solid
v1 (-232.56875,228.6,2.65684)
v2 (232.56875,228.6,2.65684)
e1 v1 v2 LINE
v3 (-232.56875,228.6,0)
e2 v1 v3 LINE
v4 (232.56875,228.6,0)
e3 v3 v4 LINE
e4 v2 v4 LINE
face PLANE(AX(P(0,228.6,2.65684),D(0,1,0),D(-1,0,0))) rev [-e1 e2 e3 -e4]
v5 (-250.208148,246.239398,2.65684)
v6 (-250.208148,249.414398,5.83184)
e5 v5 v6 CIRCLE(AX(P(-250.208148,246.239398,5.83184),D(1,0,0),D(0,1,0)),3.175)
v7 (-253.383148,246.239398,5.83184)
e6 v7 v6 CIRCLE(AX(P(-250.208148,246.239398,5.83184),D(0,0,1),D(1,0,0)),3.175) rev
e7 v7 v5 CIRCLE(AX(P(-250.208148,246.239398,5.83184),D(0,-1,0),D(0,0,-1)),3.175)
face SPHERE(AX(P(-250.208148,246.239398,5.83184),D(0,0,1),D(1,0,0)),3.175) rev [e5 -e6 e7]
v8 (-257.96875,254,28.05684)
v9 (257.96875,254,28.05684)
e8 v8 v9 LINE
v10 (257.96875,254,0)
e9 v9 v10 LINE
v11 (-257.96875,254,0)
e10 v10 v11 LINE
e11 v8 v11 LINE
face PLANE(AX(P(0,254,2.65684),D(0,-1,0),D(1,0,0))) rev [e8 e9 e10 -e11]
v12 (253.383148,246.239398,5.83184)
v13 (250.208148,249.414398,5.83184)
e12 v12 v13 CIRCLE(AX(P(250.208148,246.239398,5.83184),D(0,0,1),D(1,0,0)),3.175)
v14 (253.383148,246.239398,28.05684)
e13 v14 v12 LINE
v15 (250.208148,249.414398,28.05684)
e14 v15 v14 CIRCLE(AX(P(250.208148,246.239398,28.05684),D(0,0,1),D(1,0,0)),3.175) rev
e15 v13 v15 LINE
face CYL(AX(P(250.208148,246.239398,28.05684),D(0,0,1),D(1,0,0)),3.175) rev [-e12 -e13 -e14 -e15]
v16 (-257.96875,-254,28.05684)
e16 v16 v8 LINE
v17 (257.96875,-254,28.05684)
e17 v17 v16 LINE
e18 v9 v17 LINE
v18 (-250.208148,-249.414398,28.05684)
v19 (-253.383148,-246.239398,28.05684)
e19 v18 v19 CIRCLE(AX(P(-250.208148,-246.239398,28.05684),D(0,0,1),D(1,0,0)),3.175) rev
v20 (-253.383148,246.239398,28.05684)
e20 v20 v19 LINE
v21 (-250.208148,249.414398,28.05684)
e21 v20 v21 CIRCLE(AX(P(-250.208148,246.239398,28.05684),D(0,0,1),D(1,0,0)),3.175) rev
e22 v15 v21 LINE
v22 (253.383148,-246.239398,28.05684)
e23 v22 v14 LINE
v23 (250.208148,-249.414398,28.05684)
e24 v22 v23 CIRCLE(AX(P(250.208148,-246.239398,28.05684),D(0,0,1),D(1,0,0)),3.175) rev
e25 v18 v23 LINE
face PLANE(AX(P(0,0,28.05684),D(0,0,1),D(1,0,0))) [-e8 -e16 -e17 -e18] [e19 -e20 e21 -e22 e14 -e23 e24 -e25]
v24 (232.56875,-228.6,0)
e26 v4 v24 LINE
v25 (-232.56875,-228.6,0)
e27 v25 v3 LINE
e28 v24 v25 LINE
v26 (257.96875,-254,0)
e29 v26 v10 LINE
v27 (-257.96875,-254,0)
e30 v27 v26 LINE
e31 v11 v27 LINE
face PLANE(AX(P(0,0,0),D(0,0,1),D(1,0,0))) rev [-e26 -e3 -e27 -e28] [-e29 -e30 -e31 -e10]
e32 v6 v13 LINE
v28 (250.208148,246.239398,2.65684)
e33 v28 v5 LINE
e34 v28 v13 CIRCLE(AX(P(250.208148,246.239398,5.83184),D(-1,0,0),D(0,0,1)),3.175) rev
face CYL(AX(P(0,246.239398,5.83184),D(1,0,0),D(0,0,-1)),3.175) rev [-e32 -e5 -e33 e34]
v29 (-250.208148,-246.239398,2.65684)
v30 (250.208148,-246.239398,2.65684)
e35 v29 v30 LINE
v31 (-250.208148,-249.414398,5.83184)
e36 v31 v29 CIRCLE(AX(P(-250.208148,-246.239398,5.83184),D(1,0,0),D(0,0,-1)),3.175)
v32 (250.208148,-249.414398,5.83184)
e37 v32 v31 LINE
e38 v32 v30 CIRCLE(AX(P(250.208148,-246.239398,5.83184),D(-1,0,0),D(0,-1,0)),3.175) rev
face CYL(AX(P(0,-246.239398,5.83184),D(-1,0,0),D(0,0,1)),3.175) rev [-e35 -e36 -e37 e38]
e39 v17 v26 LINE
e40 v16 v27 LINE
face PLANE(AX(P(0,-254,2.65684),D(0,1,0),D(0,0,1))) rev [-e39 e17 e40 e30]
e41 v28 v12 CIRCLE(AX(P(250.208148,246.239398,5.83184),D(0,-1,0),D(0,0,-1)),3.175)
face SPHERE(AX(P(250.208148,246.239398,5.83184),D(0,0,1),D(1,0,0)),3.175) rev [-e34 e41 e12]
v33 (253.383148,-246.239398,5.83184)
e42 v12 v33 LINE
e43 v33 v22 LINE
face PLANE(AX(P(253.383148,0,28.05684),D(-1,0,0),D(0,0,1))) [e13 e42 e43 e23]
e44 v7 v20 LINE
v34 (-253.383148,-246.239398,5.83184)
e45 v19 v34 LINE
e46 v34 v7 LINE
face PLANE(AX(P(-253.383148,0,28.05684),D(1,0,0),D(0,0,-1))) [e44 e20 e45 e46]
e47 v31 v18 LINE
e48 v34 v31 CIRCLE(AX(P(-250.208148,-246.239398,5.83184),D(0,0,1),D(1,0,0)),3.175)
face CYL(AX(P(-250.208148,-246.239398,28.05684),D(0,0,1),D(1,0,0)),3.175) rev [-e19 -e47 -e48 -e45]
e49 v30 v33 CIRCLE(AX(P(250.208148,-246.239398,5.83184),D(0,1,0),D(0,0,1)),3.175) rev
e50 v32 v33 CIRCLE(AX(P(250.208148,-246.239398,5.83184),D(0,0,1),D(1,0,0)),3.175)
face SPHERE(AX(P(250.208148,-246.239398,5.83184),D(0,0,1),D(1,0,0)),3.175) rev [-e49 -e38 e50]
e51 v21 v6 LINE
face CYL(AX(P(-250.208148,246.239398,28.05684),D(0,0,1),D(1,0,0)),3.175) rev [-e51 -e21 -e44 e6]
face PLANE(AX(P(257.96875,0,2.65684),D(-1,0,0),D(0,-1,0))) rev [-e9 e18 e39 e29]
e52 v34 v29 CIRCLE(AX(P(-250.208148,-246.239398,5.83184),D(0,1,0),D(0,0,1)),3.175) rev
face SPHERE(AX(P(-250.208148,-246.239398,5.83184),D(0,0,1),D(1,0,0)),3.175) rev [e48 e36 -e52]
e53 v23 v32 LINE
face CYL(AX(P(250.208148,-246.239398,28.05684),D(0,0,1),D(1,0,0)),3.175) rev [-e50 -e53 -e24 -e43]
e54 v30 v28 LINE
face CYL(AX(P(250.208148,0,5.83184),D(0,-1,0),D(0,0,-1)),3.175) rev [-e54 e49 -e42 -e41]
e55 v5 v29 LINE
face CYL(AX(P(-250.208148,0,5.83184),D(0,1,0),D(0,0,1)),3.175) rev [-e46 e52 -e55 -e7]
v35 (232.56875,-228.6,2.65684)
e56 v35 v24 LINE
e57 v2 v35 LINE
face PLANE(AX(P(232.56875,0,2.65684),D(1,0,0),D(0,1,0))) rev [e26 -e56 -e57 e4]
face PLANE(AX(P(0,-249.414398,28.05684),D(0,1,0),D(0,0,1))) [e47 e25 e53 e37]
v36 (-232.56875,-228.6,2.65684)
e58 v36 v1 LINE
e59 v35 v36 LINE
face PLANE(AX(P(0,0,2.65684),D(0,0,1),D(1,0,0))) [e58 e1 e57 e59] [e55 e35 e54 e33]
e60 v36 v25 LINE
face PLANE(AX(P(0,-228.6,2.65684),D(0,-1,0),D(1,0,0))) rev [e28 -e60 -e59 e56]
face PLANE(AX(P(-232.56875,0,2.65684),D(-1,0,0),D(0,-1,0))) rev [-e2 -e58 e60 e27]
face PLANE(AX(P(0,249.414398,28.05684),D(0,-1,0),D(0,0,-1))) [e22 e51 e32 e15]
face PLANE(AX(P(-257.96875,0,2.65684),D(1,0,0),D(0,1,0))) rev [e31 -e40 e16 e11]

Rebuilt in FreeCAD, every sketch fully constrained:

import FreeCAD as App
import Part
import Sketcher
from FreeCAD import Vector
Q = App.Units.Quantity


def edges_at(feature, points):
    """Names of the edges that pass closest to the given points."""
    edges = feature.Shape.Edges
    near = lambda p: min(range(len(edges)), key=lambda i: edges[i].distToShape(Part.Vertex(*p))[0])
    return sorted({f"Edge{near(p) + 1}" for p in points})


def add_polygon(sketch, points):
    """Adds a closed chain of lines whose ends are joined by coincident constraints."""
    first, n = sketch.GeometryCount, len(points)
    for a, b in zip(points, points[1:] + points[:1]):
        sketch.addGeometry(Part.LineSegment(App.Vector(*a, 0), App.Vector(*b, 0)), False)
    for i in range(n):
        sketch.addConstraint(Sketcher.Constraint("Coincident", first + i, 2, first + (i + 1) % n, 1))

doc = App.newDocument("Part")
body = doc.addObject("PartDesign::Body", "Body")

# Sketch on XY plane
sketch1 = body.newObject("Sketcher::SketchObject", "Sketch")
sketch1.AttachmentSupport = (doc.getObject("XY_Plane"), [""])
sketch1.MapMode = "FlatFace"
add_polygon(sketch1, [(-258, 254), (-258, -254), (258, -254), (258, 254)])  # lines 0-3
add_polygon(sketch1, [(233, -229), (-233, -229), (-233, 229), (233, 229)])  # lines 4-7
sketch1.addConstraint(Sketcher.Constraint("Vertical", 0))
sketch1.addConstraint(Sketcher.Constraint("Horizontal", 1))
sketch1.addConstraint(Sketcher.Constraint("Vertical", 2))
sketch1.addConstraint(Sketcher.Constraint("Horizontal", 3))
sketch1.addConstraint(Sketcher.Constraint("Horizontal", 4))
sketch1.addConstraint(Sketcher.Constraint("Vertical", 5))
sketch1.addConstraint(Sketcher.Constraint("Horizontal", 6))
sketch1.addConstraint(Sketcher.Constraint("Vertical", 7))
sketch1.addConstraint(Sketcher.Constraint("Symmetric", 0, 2, 2, 2, -1, 1))
sketch1.addConstraint(Sketcher.Constraint("Symmetric", 4, 2, 6, 2, -1, 1))
sketch1.addConstraint(Sketcher.Constraint("DistanceY", 0, 2, 0, 1, Q("20 in")))
sketch1.addConstraint(Sketcher.Constraint("DistanceY", 5, 1, 5, 2, Q("18 in")))
sketch1.addConstraint(Sketcher.Constraint("DistanceX", 0, 2, 4, 2, Q("1 in")))
sketch1.addConstraint(Sketcher.Constraint("DistanceX", 1, 1, 1, 2, Q("20.3125 in")))
pad1 = body.newObject("PartDesign::Pad", "Pad")
pad1.Profile = sketch1
pad1.Length = Q("0.1046 in")

# Sketch on XY plane
sketch2 = body.newObject("Sketcher::SketchObject", "Sketch001")
sketch2.AttachmentSupport = (doc.getObject("XY_Plane"), [""])
sketch2.MapMode = "FlatFace"
sketch2.AttachmentOffset = App.Placement(Vector(0, 0, 0.1046 * 25.4), App.Rotation())
add_polygon(sketch2, [(-258, 254), (-258, -254), (258, -254), (258, 254)])  # lines 0-3
add_polygon(sketch2, [(253, -249), (-253, -249), (-253, 249), (253, 249)])  # lines 4-7
sketch2.addConstraint(Sketcher.Constraint("Vertical", 0))
sketch2.addConstraint(Sketcher.Constraint("Horizontal", 1))
sketch2.addConstraint(Sketcher.Constraint("Vertical", 2))
sketch2.addConstraint(Sketcher.Constraint("Horizontal", 3))
sketch2.addConstraint(Sketcher.Constraint("Horizontal", 4))
sketch2.addConstraint(Sketcher.Constraint("Vertical", 5))
sketch2.addConstraint(Sketcher.Constraint("Horizontal", 6))
sketch2.addConstraint(Sketcher.Constraint("Vertical", 7))
sketch2.addConstraint(Sketcher.Constraint("Symmetric", 0, 2, 2, 2, -1, 1))
sketch2.addConstraint(Sketcher.Constraint("Symmetric", 4, 2, 6, 2, -1, 1))
sketch2.addConstraint(Sketcher.Constraint("DistanceY", 0, 2, 0, 1, Q("20 in")))
sketch2.addConstraint(Sketcher.Constraint("DistanceX", 1, 1, 1, 2, Q("20.3125 in")))
sketch2.addConstraint(Sketcher.Constraint("DistanceY", 4, 2, -1, 1, Q("249.414398 mm")))
sketch2.addConstraint(Sketcher.Constraint("DistanceX", 0, 2, 4, 2, Q("4.585602 mm")))
pad2 = body.newObject("PartDesign::Pad", "Pad001")
pad2.Profile = sketch2
pad2.Length = Q("1 in")
doc.recompute()

fillet = body.newObject("PartDesign::Fillet", "Fillet")
fillet.Base = (pad2, edges_at(pad2, [
    (-253.383, -249.414, 15.357),
    (-253.383, 249.414, 15.357),
    (253.383, 249.414, 15.357),
    (253.383, -249.414, 15.357),
    (-253.383, 0, 2.657),
    (0, -249.414, 2.657),
    (253.383, 0, 2.657),
    (0, 249.414, 2.657),
]))
fillet.Radius = Q("0.125 in")

doc.recompute()
